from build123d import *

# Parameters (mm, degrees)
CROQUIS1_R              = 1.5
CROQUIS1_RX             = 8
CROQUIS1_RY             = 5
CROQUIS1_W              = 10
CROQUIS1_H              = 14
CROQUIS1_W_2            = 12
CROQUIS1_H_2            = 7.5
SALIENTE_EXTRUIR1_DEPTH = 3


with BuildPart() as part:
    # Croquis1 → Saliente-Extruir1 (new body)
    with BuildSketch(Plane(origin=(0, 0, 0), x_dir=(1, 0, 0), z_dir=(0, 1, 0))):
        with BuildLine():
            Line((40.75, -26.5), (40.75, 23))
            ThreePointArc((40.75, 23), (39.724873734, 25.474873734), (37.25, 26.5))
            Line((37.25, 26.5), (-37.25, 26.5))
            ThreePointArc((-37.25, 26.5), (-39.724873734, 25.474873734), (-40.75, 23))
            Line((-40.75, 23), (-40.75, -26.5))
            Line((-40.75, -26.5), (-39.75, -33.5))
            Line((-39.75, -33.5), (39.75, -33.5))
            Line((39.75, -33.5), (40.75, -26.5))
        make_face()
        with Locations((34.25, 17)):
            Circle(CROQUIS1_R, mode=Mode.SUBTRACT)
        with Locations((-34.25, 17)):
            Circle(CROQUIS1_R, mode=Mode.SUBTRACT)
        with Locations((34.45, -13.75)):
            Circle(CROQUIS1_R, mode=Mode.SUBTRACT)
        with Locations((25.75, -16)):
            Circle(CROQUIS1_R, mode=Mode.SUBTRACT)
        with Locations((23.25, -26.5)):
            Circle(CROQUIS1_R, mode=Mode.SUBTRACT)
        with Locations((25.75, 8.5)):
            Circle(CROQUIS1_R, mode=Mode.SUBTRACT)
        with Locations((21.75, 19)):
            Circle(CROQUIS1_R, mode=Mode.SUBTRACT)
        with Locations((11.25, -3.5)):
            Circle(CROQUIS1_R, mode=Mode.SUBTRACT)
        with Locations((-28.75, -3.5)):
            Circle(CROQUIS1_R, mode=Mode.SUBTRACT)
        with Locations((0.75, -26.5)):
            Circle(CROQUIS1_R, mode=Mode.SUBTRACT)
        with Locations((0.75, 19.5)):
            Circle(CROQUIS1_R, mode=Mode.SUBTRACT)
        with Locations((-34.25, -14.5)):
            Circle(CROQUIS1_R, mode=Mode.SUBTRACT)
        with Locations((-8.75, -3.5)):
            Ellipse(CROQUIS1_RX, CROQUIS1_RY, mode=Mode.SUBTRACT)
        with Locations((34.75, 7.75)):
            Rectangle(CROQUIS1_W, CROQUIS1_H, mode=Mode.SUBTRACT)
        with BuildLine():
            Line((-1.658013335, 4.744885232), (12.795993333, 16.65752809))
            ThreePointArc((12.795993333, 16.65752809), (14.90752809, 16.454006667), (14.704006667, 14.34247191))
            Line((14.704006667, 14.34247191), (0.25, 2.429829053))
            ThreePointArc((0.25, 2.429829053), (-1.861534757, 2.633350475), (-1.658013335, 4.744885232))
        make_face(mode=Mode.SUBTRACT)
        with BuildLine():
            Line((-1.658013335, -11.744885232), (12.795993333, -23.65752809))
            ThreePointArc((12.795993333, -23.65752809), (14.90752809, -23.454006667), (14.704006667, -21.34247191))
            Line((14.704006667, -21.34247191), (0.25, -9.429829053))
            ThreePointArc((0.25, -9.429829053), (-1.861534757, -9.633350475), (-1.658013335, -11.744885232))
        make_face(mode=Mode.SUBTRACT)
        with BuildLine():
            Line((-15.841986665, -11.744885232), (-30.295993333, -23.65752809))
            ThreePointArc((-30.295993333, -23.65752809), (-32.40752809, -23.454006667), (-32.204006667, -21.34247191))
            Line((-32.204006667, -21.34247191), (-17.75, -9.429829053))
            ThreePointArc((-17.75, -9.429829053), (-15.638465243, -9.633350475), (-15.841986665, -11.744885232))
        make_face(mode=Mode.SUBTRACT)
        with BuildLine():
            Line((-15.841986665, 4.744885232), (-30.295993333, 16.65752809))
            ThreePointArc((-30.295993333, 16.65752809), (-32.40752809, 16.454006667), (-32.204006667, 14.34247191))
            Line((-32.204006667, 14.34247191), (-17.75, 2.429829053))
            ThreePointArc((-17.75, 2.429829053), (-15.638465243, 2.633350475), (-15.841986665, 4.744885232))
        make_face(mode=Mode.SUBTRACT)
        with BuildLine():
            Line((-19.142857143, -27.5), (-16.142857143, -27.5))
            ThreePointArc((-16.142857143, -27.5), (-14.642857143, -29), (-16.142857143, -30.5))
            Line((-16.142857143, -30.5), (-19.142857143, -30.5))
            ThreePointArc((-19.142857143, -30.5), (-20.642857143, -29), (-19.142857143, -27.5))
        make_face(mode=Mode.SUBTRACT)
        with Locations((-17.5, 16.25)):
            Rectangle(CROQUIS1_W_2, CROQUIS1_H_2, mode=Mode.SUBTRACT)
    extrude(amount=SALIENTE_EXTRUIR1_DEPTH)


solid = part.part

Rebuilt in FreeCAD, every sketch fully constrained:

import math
import FreeCAD as App
import Part
import Sketcher
Q = App.Units.Quantity

doc = App.newDocument("Part")
body = doc.addObject("PartDesign::Body", "Body")

sketch1 = doc.addObject("Sketcher::SketchObject", "Sketch")
body.addObject(sketch1)
sketch1.AttachmentSupport = (doc.XZ_Plane, [""])
sketch1.MapMode = "FlatFace"
sketch1.addGeometry([
    Part.LineSegment(App.Vector(40.75, 26.5, 0), App.Vector(40.75, -23, 0)),
    Part.ArcOfCircle(Part.Circle(App.Vector(37.25, -23, 0), App.Vector(0, 0, 1), 3.5), math.radians(-90), math.radians(0)),
    Part.LineSegment(App.Vector(37.25, -26.5, 0), App.Vector(-37.25, -26.5, 0)),
    Part.ArcOfCircle(Part.Circle(App.Vector(-37.25, -23, 0), App.Vector(0, 0, 1), 3.5), math.radians(-180), math.radians(-90)),
    Part.LineSegment(App.Vector(-40.75, -23, 0), App.Vector(-40.75, 26.5, 0)),
    Part.LineSegment(App.Vector(-40.75, 26.5, 0), App.Vector(-39.75, 33.5, 0)),
    Part.LineSegment(App.Vector(-39.75, 33.5, 0), App.Vector(39.75, 33.5, 0)),
    Part.LineSegment(App.Vector(39.75, 33.5, 0), App.Vector(40.75, 26.5, 0)),
    Part.ArcOfCircle(Part.Circle(App.Vector(-19.142857, 29, 0), App.Vector(0, 0, 1), 1.5), math.radians(90), math.radians(270)),
    Part.LineSegment(App.Vector(-19.142857, 27.5, 0), App.Vector(-16.142857, 27.5, 0)),
    Part.ArcOfCircle(Part.Circle(App.Vector(-16.142857, 29, 0), App.Vector(0, 0, 1), 1.5), math.radians(-90), math.radians(90)),
    Part.LineSegment(App.Vector(-16.142857, 30.5, 0), App.Vector(-19.142857, 30.5, 0)),
    Part.Circle(App.Vector(0.75, 26.5, 0), App.Vector(0, 0, 1), 1.5),
    Part.Circle(App.Vector(-34.25, 14.5, 0), App.Vector(0, 0, 1), 1.5),
    Part.ArcOfCircle(Part.Circle(App.Vector(-16.795993, 10.587357, 0), App.Vector(0, 0, 1), 1.5), math.radians(-129.494522), math.radians(50.505478)),
    Part.LineSegment(App.Vector(-15.841987, 11.744885, 0), App.Vector(-30.295993, 23.657528, 0)),
    Part.ArcOfCircle(Part.Circle(App.Vector(-31.25, 22.5, 0), App.Vector(0, 0, 1), 1.5), math.radians(50.505478), math.radians(230.505478)),
    Part.LineSegment(App.Vector(-32.204007, 21.342472, 0), App.Vector(-17.75, 9.429829, 0)),
    Part.Circle(App.Vector(23.25, 26.5, 0), App.Vector(0, 0, 1), 1.5),
    Part.LineSegment(App.Vector(12.795993, 23.657528, 0), App.Vector(-1.658013, 11.744885, 0)),
    Part.ArcOfCircle(Part.Circle(App.Vector(-0.704007, 10.587357, 0), App.Vector(0, 0, 1), 1.5), math.radians(129.494522), math.radians(309.494522)),
    Part.LineSegment(App.Vector(0.25, 9.429829, 0), App.Vector(14.704007, 21.342472, 0)),
    Part.ArcOfCircle(Part.Circle(App.Vector(13.75, 22.5, 0), App.Vector(0, 0, 1), 1.5), math.radians(-50.505478), math.radians(129.494522)),
    Part.Circle(App.Vector(25.75, 16, 0), App.Vector(0, 0, 1), 1.5),
    Part.Circle(App.Vector(34.45, 13.75, 0), App.Vector(0, 0, 1), 1.5),
    Part.Circle(App.Vector(-28.75, 3.5, 0), App.Vector(0, 0, 1), 1.5),
    Part.Ellipse(App.Vector(-0.75, 3.5, 0), App.Vector(-8.75, 8.5, 0), App.Vector(-8.75, 3.5, 0)),
    Part.LineSegment(App.Vector(-30.295993, -16.657528, 0), App.Vector(-15.841987, -4.744885, 0)),
    Part.ArcOfCircle(Part.Circle(App.Vector(-16.795993, -3.587357, 0), App.Vector(0, 0, 1), 1.5), math.radians(-50.505478), math.radians(129.494522)),
    Part.LineSegment(App.Vector(-17.75, -2.429829, 0), App.Vector(-32.204007, -14.342472, 0)),
    Part.ArcOfCircle(Part.Circle(App.Vector(-31.25, -15.5, 0), App.Vector(0, 0, 1), 1.5), math.radians(129.494522), math.radians(309.494522)),
    Part.Circle(App.Vector(-34.25, -17, 0), App.Vector(0, 0, 1), 1.5),
    Part.LineSegment(App.Vector(-11.5, -12.5, 0), App.Vector(-23.5, -12.5, 0)),
    Part.LineSegment(App.Vector(-23.5, -12.5, 0), App.Vector(-23.5, -20, 0)),
    Part.LineSegment(App.Vector(-23.5, -20, 0), App.Vector(-11.5, -20, 0)),
    Part.LineSegment(App.Vector(-11.5, -20, 0), App.Vector(-11.5, -12.5, 0)),
    Part.Circle(App.Vector(0.75, -19.5, 0), App.Vector(0, 0, 1), 1.5),
    Part.Circle(App.Vector(11.25, 3.5, 0), App.Vector(0, 0, 1), 1.5),
    Part.LineSegment(App.Vector(39.75, -0.75, 0), App.Vector(29.75, -0.75, 0)),
    Part.LineSegment(App.Vector(29.75, -0.75, 0), App.Vector(29.75, -14.75, 0)),
    Part.LineSegment(App.Vector(29.75, -14.75, 0), App.Vector(39.75, -14.75, 0)),
    Part.LineSegment(App.Vector(39.75, -14.75, 0), App.Vector(39.75, -0.75, 0)),
    Part.ArcOfCircle(Part.Circle(App.Vector(-0.704007, -3.587357, 0), App.Vector(0, 0, 1), 1.5), math.radians(50.505478), math.radians(230.505478)),
    Part.LineSegment(App.Vector(-1.658013, -4.744885, 0), App.Vector(12.795993, -16.657528, 0)),
    Part.ArcOfCircle(Part.Circle(App.Vector(13.75, -15.5, 0), App.Vector(0, 0, 1), 1.5), math.radians(-129.494522), math.radians(50.505478)),
    Part.LineSegment(App.Vector(14.704007, -14.342472, 0), App.Vector(0.25, -2.429829, 0)),
    Part.Circle(App.Vector(25.75, -8.5, 0), App.Vector(0, 0, 1), 1.5),
    Part.Circle(App.Vector(21.75, -19, 0), App.Vector(0, 0, 1), 1.5),
    Part.Circle(App.Vector(34.25, -17, 0), App.Vector(0, 0, 1), 1.5),
], False)
sketch1.addConstraint([
    Sketcher.Constraint("Block", 26),
    Sketcher.Constraint("Tangent", 0, 2, 1, 2),
    Sketcher.Constraint("Tangent", 1, 1, 2, 1),
    Sketcher.Constraint("Tangent", 2, 2, 3, 2),
    Sketcher.Constraint("Tangent", 3, 1, 4, 1),
    Sketcher.Constraint("Coincident", 4, 2, 5, 1),
    Sketcher.Constraint("Coincident", 5, 2, 6, 1),
    Sketcher.Constraint("Coincident", 6, 2, 7, 1),
    Sketcher.Constraint("Coincident", 7, 2, 0, 1),
    Sketcher.Constraint("Tangent", 8, 2, 9, 1),
    Sketcher.Constraint("Tangent", 9, 2, 10, 1),
    Sketcher.Constraint("Tangent", 10, 2, 11, 1),
    Sketcher.Constraint("Tangent", 11, 2, 8, 1),
    Sketcher.Constraint("Tangent", 14, 2, 15, 1),
    Sketcher.Constraint("Tangent", 15, 2, 16, 1),
    Sketcher.Constraint("Tangent", 16, 2, 17, 1),
    Sketcher.Constraint("Tangent", 17, 2, 14, 1),
    Sketcher.Constraint("Tangent", 19, 2, 20, 1),
    Sketcher.Constraint("Tangent", 20, 2, 21, 1),
    Sketcher.Constraint("Tangent", 21, 2, 22, 1),
    Sketcher.Constraint("Tangent", 22, 2, 19, 1),
    Sketcher.Constraint("Tangent", 27, 2, 28, 1),
    Sketcher.Constraint("Tangent", 28, 2, 29, 1),
    Sketcher.Constraint("Tangent", 29, 2, 30, 1),
    Sketcher.Constraint("Tangent", 30, 2, 27, 1),
    Sketcher.Constraint("Coincident", 32, 2, 33, 1),
    Sketcher.Constraint("Coincident", 33, 2, 34, 1),
    Sketcher.Constraint("Coincident", 34, 2, 35, 1),
    Sketcher.Constraint("Coincident", 35, 2, 32, 1),
    Sketcher.Constraint("Coincident", 38, 2, 39, 1),
    Sketcher.Constraint("Coincident", 39, 2, 40, 1),
    Sketcher.Constraint("Coincident", 40, 2, 41, 1),
    Sketcher.Constraint("Coincident", 41, 2, 38, 1),
    Sketcher.Constraint("Tangent", 42, 2, 43, 1),
    Sketcher.Constraint("Tangent", 43, 2, 44, 1),
    Sketcher.Constraint("Tangent", 44, 2, 45, 1),
    Sketcher.Constraint("Tangent", 45, 2, 42, 1),
    Sketcher.Constraint("Vertical", 0),
    Sketcher.Constraint("Horizontal", 2),
    Sketcher.Constraint("Vertical", 4),
    Sketcher.Constraint("Horizontal", 6),
    Sketcher.Constraint("Horizontal", 9),
    Sketcher.Constraint("Horizontal", 11),
    Sketcher.Constraint("Horizontal", 32),
    Sketcher.Constraint("Vertical", 33),
    Sketcher.Constraint("Horizontal", 34),
    Sketcher.Constraint("Vertical", 35),
    Sketcher.Constraint("Horizontal", 38),
    Sketcher.Constraint("Vertical", 39),
    Sketcher.Constraint("Horizontal", 40),
    Sketcher.Constraint("Vertical", 41),
    Sketcher.Constraint("Equal", 1, 3),
    Sketcher.Constraint("Equal", 10, 12),
    Sketcher.Constraint("Equal", 12, 13),
    Sketcher.Constraint("Equal", 13, 14),
    Sketcher.Constraint("Equal", 14, 16),
    Sketcher.Constraint("Equal", 16, 18),
    Sketcher.Constraint("Equal", 18, 20),
    Sketcher.Constraint("Equal", 20, 22),
    Sketcher.Constraint("Equal", 22, 23),
    Sketcher.Constraint("Equal", 23, 24),
    Sketcher.Constraint("Equal", 24, 25),
    Sketcher.Constraint("Equal", 25, 28),
    Sketcher.Constraint("Equal", 28, 30),
    Sketcher.Constraint("Equal", 30, 31),
    Sketcher.Constraint("Equal", 31, 36),
    Sketcher.Constraint("Equal", 36, 37),
    Sketcher.Constraint("Equal", 37, 42),
    Sketcher.Constraint("Equal", 42, 44),
    Sketcher.Constraint("Equal", 44, 46),
    Sketcher.Constraint("Equal", 46, 47),
    Sketcher.Constraint("Equal", 47, 48),
    Sketcher.Constraint("Symmetric", 31, 3, 48, 3, -2),
    Sketcher.Constraint("Symmetric", 4, 2, 7, 2, -2),
    Sketcher.Constraint("Parallel", 21, 27),
    Sketcher.Constraint("Parallel", 17, 43),
    Sketcher.Constraint("Horizontal", 12, 3, 18, 3),
    Sketcher.Constraint("Horizontal", 14, 3, 20, 3),
    Sketcher.Constraint("Horizontal", 16, 3, 22, 3),
    Sketcher.Constraint("Horizontal", 25, 3, 37, 3),
    Sketcher.Constraint("Horizontal", 28, 3, 42, 3),
    Sketcher.Constraint("Horizontal", 30, 3, 44, 3),
    Sketcher.Constraint("Horizontal", 18, 3, 4, 2),
    Sketcher.Constraint("Horizontal", 14, 2, 19, 2),
    Sketcher.Constraint("Vertical", 14, 3, 28, 3),
    Sketcher.Constraint("Vertical", 16, 3, 30, 3),
    Sketcher.Constraint("Vertical", 13, 3, 31, 3),
    Sketcher.Constraint("Vertical", 12, 3, 36, 3),
    Sketcher.Constraint("Vertical", 20, 3, 42, 3),
    Sketcher.Constraint("Vertical", 23, 3, 46, 3),
    Sketcher.Constraint("Vertical", 6, 2, 40, 2),
    Sketcher.Constraint("Equal", 5, 7),
    Sketcher.Constraint("Diameter", 12, Q("3 mm")),
    Sketcher.Constraint("Radius", 1, Q("3.5 mm")),
    Sketcher.Constraint("DistanceX", 9, 1, 9, 2, Q("3 mm")),
    Sketcher.Constraint("DistanceX", 32, 2, 32, 1, Q("12 mm")),
    Sketcher.Constraint("DistanceX", 38, 2, 38, 1, Q("10 mm")),
    Sketcher.Constraint("DistanceY", 39, 2, 39, 1, Q("14 mm")),
    Sketcher.Constraint("DistanceX", 2, 2, 2, 1, Q("74.5 mm")),
    Sketcher.Constraint("DistanceX", 6, 1, 6, 2, Q("79.5 mm")),
    Sketcher.Constraint("DistanceY", 0, 2, 0, 1, Q("49.5 mm")),
    Sketcher.Constraint("DistanceY", 33, 2, 33, 1, Q("7.5 mm")),
    Sketcher.Constraint("DistanceY", 1, 3, -1, 1, Q("23 mm")),
    Sketcher.Constraint("DistanceY", -1, 1, 8, 3, Q("29 mm")),
    Sketcher.Constraint("DistanceY", -1, 1, 23, 3, Q("16 mm")),
    Sketcher.Constraint("DistanceY", 31, 3, -1, 1, Q("17 mm")),
    Sketcher.Constraint("DistanceY", 47, 3, -1, 1, Q("19 mm")),
    Sketcher.Constraint("DistanceY", 33, 2, -1, 1, Q("20 mm")),
    Sketcher.Constraint("DistanceX", 3, 3, 12, 3, Q("38 mm")),
    Sketcher.Constraint("DistanceX", 13, 3, 12, 3, Q("35 mm")),
    Sketcher.Constraint("DistanceY", 13, 3, 12, 3, Q("12 mm")),
    Sketcher.Constraint("DistanceX", 13, 3, 16, 3, Q("3 mm")),
    Sketcher.Constraint("DistanceY", 13, 3, 16, 3, Q("8 mm")),
    Sketcher.Constraint("DistanceX", 18, 3, 1, 3, Q("14 mm")),
    Sketcher.Constraint("DistanceX", 12, 3, 22, 3, Q("13 mm")),
    Sketcher.Constraint("DistanceX", 22, 3, 23, 3, Q("12 mm")),
    Sketcher.Constraint("DistanceY", 25, 3, 13, 3, Q("11 mm")),
    Sketcher.Constraint("DistanceY", 30, 3, 25, 3, Q("19 mm")),
    Sketcher.Constraint("DistanceY", 36, 3, 30, 3, Q("4 mm")),
    Sketcher.Constraint("DistanceY", 44, 3, 46, 3, Q("7 mm")),
    Sketcher.Constraint("DistanceX", 44, 3, 47, 3, Q("8 mm")),
    Sketcher.Constraint("DistanceX", 3, 1, 25, 3, Q("12 mm")),
    Sketcher.Constraint("DistanceY", 4, 2, 5, 2, Q("7 mm")),
    Sketcher.Constraint("DistanceX", 25, 3, 17, 2, Q("11 mm")),
    Sketcher.Constraint("DistanceX", 20, 2, 37, 3, Q("11 mm")),
    Sketcher.Constraint("DistanceX", 32, 2, -1, 1, Q("23.5 mm")),
    Sketcher.Constraint("DistanceX", 23, 3, 24, 3, Q("8.7 mm")),
    Sketcher.Constraint("DistanceY", 38, 2, 24, 3, Q("14.5 mm")),
    Sketcher.Constraint("DistanceY", -1, 1, 24, 3, Q("13.75 mm")),
    Sketcher.Constraint("Distance", 15, Q("18.73044 mm")),
    Sketcher.Constraint("DistanceX", 10, 3, 20, 3, Q("15.43885 mm")),
])
pad1 = doc.addObject("PartDesign::Pad", "Pad")
body.addObject(pad1)
pad1.Profile = sketch1
pad1.Length = 3
pad1.Reversed = True

doc.recompute()
